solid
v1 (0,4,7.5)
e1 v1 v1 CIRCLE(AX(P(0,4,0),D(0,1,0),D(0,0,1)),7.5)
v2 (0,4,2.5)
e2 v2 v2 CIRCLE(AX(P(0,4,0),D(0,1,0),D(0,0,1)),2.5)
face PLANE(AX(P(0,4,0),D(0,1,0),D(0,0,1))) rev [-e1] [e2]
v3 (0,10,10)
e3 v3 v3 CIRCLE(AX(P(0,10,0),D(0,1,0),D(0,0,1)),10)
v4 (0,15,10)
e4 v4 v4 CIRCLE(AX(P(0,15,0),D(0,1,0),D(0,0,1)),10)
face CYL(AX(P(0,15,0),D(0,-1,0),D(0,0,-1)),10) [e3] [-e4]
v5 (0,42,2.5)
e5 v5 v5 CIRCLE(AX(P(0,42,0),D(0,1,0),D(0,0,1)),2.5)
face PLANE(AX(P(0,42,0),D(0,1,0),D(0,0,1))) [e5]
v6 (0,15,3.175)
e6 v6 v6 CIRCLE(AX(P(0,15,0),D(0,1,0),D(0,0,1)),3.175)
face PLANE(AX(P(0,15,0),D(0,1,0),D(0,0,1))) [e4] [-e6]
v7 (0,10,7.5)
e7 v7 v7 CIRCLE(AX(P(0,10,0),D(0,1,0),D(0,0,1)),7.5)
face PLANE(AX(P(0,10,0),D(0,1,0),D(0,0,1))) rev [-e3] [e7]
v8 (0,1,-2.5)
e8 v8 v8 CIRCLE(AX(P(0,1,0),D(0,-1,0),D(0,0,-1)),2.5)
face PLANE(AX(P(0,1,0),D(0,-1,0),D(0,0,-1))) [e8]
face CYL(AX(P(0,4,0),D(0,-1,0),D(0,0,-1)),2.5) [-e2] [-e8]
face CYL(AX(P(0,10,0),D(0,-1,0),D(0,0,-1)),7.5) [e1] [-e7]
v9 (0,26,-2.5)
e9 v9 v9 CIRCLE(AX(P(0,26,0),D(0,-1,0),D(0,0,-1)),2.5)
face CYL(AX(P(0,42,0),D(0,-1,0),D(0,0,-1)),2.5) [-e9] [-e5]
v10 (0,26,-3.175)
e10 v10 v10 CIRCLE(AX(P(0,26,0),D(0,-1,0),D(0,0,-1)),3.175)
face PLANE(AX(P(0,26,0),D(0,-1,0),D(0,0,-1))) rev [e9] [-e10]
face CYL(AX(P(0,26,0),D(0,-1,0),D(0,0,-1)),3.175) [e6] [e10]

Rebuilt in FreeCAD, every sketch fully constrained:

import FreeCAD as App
import Part
import Sketcher

V = App.Vector

doc = App.newDocument("Part")
params = doc.addObject("Spreadsheet::Sheet", "Params")
for row, (alias, value) in enumerate([
    ("sketch1_diameter", "5 mm"),
    ("pad1_length", "4 mm"),
    ("sketch2_diameter", "15 mm"),
    ("pad2_length", "6 mm"),
    ("sketch3_diameter", "20 mm"),
    ("pad3_length", "5 mm"),
    ("sketch4_diameter", "6.35 mm"),
    ("pad4_length", "11 mm"),
    ("sketch5_diameter", "20 mm"),
    ("pad5_length", "5 mm"),
    ("sketch6_diameter", "15 mm"),
    ("pad6_length", "7 mm"),
    ("sketch7_diameter", "5 mm"),
    ("pad7_length", "4 mm"),
    ("sketch8_diameter", "5 mm"),
    ("pocket1_length", "45.31704 mm"),
    ("pocket1_length2", "1 mm"),
    ("sketch9_diameter", "20 mm"),
    ("sketch9_diameter2", "5 mm"),
    ("pocket2_length", "15 mm"),
], start=1):
    params.set(f"A{row}", alias)
    params.set(f"B{row}", "=" + value)
    params.setAlias(f"B{row}", alias)

body = doc.addObject("PartDesign::Body", "Body")

sketch1 = body.newObject("Sketcher::SketchObject", "Sketch")
sketch1.AttachmentSupport = (doc.getObject("XZ_Plane"), [""])
sketch1.MapMode = "FlatFace"
sketch1.addGeometry(Part.Circle(V(0, 0, 0), V(0, 0, 1), 2.5), False)
sketch1.addConstraint([
    Sketcher.Constraint("Coincident", 0, 3, -1, 1),
    Sketcher.Constraint("Diameter", 0, 5.0),
])
sketch1.setExpression("Constraints[1]", "Params.sketch1_diameter")
pad1 = body.newObject("PartDesign::Pad", "Pad")
pad1.Profile = sketch1
pad1.setExpression("Length", "Params.pad1_length")
pad1.Reversed = True

sketch2 = body.newObject("Sketcher::SketchObject", "Sketch001")
sketch2.AttachmentSupport = (doc.getObject("XZ_Plane"), [""])
sketch2.MapMode = "FlatFace"
sketch2.AttachmentOffset = App.Placement(V(0, 0, -4), App.Rotation())
sketch2.addGeometry(Part.Circle(V(0, 0, 0), V(0, 0, 1), 7.5), False)
sketch2.addConstraint([
    Sketcher.Constraint("Coincident", 0, 3, -1, 1),
    Sketcher.Constraint("Diameter", 0, 15.0),
])
sketch2.setExpression("Constraints[1]", "Params.sketch2_diameter")
pad2 = body.newObject("PartDesign::Pad", "Pad001")
pad2.Profile = sketch2
pad2.setExpression("Length", "Params.pad2_length")
pad2.Reversed = True

sketch3 = body.newObject("Sketcher::SketchObject", "Sketch002")
sketch3.AttachmentSupport = (doc.getObject("XZ_Plane"), [""])
sketch3.MapMode = "FlatFace"
sketch3.AttachmentOffset = App.Placement(V(0, 0, -10), App.Rotation())
sketch3.addGeometry(Part.Circle(V(0, 0, 0), V(0, 0, 1), 10), False)
sketch3.addConstraint([
    Sketcher.Constraint("Coincident", 0, 3, -1, 1),
    Sketcher.Constraint("Diameter", 0, 20.0),
])
sketch3.setExpression("Constraints[1]", "Params.sketch3_diameter")
pad3 = body.newObject("PartDesign::Pad", "Pad002")
pad3.Profile = sketch3
pad3.setExpression("Length", "Params.pad3_length")
pad3.Reversed = True

sketch4 = body.newObject("Sketcher::SketchObject", "Sketch003")
sketch4.AttachmentSupport = (doc.getObject("XZ_Plane"), [""])
sketch4.MapMode = "FlatFace"
sketch4.AttachmentOffset = App.Placement(V(0, 0, -15), App.Rotation())
sketch4.addGeometry(Part.Circle(V(0, 0, 0), V(0, 0, 1), 3.175), False)
sketch4.addConstraint([
    Sketcher.Constraint("Coincident", 0, 3, -1, 1),
    Sketcher.Constraint("Diameter", 0, 6.35),
])
sketch4.setExpression("Constraints[1]", "Params.sketch4_diameter")
pad4 = body.newObject("PartDesign::Pad", "Pad003")
pad4.Profile = sketch4
pad4.setExpression("Length", "Params.pad4_length")
pad4.Reversed = True

sketch5 = body.newObject("Sketcher::SketchObject", "Sketch004")
sketch5.AttachmentSupport = (doc.getObject("XZ_Plane"), [""])
sketch5.MapMode = "FlatFace"
sketch5.AttachmentOffset = App.Placement(V(0, 0, -26), App.Rotation())
sketch5.addGeometry(Part.Circle(V(0, 0, 0), V(0, 0, 1), 10), False)
sketch5.addConstraint([
    Sketcher.Constraint("Coincident", 0, 3, -1, 1),
    Sketcher.Constraint("Diameter", 0, 20.0),
])
sketch5.setExpression("Constraints[1]", "Params.sketch5_diameter")
pad5 = body.newObject("PartDesign::Pad", "Pad004")
pad5.Profile = sketch5
pad5.setExpression("Length", "Params.pad5_length")
pad5.Reversed = True

sketch6 = body.newObject("Sketcher::SketchObject", "Sketch005")
sketch6.AttachmentSupport = (doc.getObject("XZ_Plane"), [""])
sketch6.MapMode = "FlatFace"
sketch6.AttachmentOffset = App.Placement(V(0, 0, -31), App.Rotation())
sketch6.addGeometry(Part.Circle(V(0, 0, 0), V(0, 0, 1), 7.5), False)
sketch6.addConstraint([
    Sketcher.Constraint("Coincident", 0, 3, -1, 1),
    Sketcher.Constraint("Diameter", 0, 15.0),
])
sketch6.setExpression("Constraints[1]", "Params.sketch6_diameter")
pad6 = body.newObject("PartDesign::Pad", "Pad005")
pad6.Profile = sketch6
pad6.setExpression("Length", "Params.pad6_length")
pad6.Reversed = True

sketch7 = body.newObject("Sketcher::SketchObject", "Sketch006")
sketch7.AttachmentSupport = (doc.getObject("XZ_Plane"), [""])
sketch7.MapMode = "FlatFace"
sketch7.AttachmentOffset = App.Placement(V(0, 0, -38), App.Rotation())
sketch7.addGeometry(Part.Circle(V(0, 0, 0), V(0, 0, 1), 2.5), False)
sketch7.addConstraint([
    Sketcher.Constraint("Coincident", 0, 3, -1, 1),
    Sketcher.Constraint("Diameter", 0, 5.0),
])
sketch7.setExpression("Constraints[1]", "Params.sketch7_diameter")
pad7 = body.newObject("PartDesign::Pad", "Pad006")
pad7.Profile = sketch7
pad7.setExpression("Length", "Params.pad7_length")
pad7.Reversed = True

sketch8 = body.newObject("Sketcher::SketchObject", "Sketch007")
sketch8.AttachmentSupport = (doc.getObject("XZ_Plane"), [""])
sketch8.MapMode = "FlatFace"
sketch8.addGeometry(Part.Circle(V(0, 0, 0), V(0, 0, 1), 2.5), False)
sketch8.addConstraint([
    Sketcher.Constraint("Coincident", 0, 3, -1, 1),
    Sketcher.Constraint("Diameter", 0, 5.0),
])
sketch8.setExpression("Constraints[1]", "Params.sketch8_diameter")
pocket1 = body.newObject("PartDesign::Pocket", "Pocket")
pocket1.Profile = sketch8
pocket1.Type = "TwoLengths"
pocket1.setExpression("Length", "Params.pocket1_length")
pocket1.setExpression("Length2", "Params.pocket1_length2")
pocket1.Reversed = True

sketch9 = body.newObject("Sketcher::SketchObject", "Sketch008")
sketch9.AttachmentSupport = (doc.getObject("XZ_Plane"), [""])
sketch9.MapMode = "FlatFace"
sketch9.AttachmentOffset = App.Placement(V(0, 0, -26), App.Rotation())
sketch9.addGeometry([
    Part.Circle(V(0, 0, 0), V(0, 0, 1), 10),
    Part.Circle(V(0, 0, 0), V(0, 0, 1), 2.5),
], False)
sketch9.addConstraint([
    Sketcher.Constraint("Coincident", 0, 3, -1, 1),
    Sketcher.Constraint("Coincident", 1, 3, -1, 1),
    Sketcher.Constraint("Diameter", 0, 20.0),
    Sketcher.Constraint("Diameter", 1, 5.0),
])
sketch9.setExpression("Constraints[2]", "Params.sketch9_diameter")
sketch9.setExpression("Constraints[3]", "Params.sketch9_diameter2")
pocket2 = body.newObject("PartDesign::Pocket", "Pocket001")
pocket2.Profile = sketch9
pocket2.setExpression("Length", "Params.pocket2_length")

doc.recompute()
